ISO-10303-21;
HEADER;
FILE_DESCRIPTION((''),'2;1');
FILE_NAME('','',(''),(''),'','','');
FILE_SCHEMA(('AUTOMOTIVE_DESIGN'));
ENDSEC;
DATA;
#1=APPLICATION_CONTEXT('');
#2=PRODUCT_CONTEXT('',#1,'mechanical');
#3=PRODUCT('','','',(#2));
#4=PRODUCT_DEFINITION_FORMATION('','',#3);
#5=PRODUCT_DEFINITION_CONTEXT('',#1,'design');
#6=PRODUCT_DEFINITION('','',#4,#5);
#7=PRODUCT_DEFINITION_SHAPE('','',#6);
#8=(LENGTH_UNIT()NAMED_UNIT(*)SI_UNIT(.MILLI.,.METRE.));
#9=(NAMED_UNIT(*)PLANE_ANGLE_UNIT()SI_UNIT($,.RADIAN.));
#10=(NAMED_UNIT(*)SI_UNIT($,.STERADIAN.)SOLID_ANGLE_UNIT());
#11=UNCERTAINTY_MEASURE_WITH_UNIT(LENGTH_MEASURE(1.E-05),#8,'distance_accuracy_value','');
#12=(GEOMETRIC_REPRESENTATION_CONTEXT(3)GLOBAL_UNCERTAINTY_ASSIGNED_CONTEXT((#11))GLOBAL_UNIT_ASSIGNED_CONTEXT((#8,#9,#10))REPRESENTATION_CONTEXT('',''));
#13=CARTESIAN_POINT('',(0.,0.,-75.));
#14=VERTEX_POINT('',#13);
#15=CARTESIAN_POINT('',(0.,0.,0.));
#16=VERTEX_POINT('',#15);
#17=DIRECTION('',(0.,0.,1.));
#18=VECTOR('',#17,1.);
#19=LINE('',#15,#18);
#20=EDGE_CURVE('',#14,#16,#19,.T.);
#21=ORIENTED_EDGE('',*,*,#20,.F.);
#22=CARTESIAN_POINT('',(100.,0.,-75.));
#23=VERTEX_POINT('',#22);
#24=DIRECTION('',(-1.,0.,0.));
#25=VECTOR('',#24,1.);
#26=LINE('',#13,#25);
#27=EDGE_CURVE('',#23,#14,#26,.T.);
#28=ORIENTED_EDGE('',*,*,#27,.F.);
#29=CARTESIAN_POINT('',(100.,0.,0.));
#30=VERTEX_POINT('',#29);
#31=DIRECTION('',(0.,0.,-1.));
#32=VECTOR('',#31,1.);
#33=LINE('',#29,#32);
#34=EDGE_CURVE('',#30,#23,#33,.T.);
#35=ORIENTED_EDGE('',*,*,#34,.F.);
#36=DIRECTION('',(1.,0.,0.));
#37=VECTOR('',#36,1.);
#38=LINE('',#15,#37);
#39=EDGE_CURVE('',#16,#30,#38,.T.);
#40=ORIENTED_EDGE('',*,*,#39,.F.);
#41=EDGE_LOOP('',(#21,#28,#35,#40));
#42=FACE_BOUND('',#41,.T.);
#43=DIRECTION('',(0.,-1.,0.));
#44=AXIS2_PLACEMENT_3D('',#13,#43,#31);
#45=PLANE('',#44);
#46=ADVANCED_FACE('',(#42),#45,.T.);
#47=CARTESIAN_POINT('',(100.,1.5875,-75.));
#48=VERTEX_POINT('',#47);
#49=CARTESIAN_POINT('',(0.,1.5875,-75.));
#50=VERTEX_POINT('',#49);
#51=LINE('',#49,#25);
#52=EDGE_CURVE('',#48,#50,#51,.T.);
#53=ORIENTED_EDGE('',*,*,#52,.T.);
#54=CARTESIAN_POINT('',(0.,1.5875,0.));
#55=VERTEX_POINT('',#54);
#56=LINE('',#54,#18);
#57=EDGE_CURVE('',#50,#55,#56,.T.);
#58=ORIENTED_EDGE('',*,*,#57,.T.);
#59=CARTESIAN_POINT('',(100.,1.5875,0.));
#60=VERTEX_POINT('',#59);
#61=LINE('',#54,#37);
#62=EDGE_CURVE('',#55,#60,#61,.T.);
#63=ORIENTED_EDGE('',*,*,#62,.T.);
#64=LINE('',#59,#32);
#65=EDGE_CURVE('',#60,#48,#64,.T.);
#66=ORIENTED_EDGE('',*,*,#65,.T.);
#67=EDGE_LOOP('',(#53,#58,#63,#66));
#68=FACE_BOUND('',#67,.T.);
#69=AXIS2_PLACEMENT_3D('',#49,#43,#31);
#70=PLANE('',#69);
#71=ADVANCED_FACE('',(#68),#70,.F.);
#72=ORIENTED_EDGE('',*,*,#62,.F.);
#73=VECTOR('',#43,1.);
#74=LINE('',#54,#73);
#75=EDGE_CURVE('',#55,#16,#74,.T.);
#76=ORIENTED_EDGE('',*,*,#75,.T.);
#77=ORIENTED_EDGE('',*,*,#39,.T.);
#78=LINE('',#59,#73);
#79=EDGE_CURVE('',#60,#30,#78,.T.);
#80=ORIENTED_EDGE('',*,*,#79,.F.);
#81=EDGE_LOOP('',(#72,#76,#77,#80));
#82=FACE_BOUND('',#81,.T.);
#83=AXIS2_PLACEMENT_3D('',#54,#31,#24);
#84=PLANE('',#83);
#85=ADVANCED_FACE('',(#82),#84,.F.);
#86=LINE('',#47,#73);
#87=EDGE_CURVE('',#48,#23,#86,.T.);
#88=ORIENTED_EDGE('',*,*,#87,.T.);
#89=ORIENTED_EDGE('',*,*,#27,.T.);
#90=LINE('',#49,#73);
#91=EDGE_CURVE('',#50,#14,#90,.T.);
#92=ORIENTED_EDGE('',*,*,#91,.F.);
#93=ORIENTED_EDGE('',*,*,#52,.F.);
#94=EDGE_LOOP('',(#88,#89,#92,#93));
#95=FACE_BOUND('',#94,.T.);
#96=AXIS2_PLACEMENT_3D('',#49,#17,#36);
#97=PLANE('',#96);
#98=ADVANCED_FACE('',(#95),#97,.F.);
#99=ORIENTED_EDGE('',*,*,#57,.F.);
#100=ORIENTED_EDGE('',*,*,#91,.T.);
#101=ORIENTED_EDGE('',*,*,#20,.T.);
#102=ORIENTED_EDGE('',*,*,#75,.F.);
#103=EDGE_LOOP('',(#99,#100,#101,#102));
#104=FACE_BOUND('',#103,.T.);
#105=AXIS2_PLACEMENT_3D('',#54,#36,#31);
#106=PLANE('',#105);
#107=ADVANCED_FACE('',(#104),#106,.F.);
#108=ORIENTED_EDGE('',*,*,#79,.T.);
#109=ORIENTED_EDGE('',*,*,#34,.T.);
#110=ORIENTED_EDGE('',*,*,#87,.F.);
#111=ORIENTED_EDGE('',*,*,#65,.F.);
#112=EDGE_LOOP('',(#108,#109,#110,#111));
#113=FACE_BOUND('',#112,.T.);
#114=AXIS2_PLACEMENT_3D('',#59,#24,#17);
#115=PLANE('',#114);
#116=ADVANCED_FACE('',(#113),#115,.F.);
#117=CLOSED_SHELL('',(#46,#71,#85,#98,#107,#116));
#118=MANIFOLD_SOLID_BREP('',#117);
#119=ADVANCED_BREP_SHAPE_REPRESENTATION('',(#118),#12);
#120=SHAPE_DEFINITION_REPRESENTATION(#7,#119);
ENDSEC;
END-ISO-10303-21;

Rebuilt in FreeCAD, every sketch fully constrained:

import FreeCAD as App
import Part
import Sketcher

V = App.Vector
Q = App.Units.Quantity

doc = App.newDocument("Part")
body = doc.addObject("PartDesign::Body", "Body")

sketch1 = doc.addObject("Sketcher::SketchObject", "Sketch")
body.addObject(sketch1)
sketch1.AttachmentSupport = (doc.XZ_Plane, [""])
sketch1.MapMode = "FlatFace"
sketch1.addGeometry([
    Part.LineSegment(V(0, -75, 0), V(0, 0, 0)),
    Part.LineSegment(V(0, 0, 0), V(100, 0, 0)),
    Part.LineSegment(V(100, 0, 0), V(100, -75, 0)),
    Part.LineSegment(V(100, -75, 0), V(0, -75, 0)),
], False)
sketch1.addConstraint([
    Sketcher.Constraint("Coincident", 0, 2, 1, 1),
    Sketcher.Constraint("Coincident", 1, 2, 2, 1),
    Sketcher.Constraint("Coincident", 2, 2, 3, 1),
    Sketcher.Constraint("Coincident", 3, 2, 0, 1),
    Sketcher.Constraint("Vertical", 0),
    Sketcher.Constraint("Horizontal", 1),
    Sketcher.Constraint("Vertical", 2),
    Sketcher.Constraint("Horizontal", 3),
    Sketcher.Constraint("Coincident", 0, 2, -1, 1),
    Sketcher.Constraint("DistanceX", 1, 1, 1, 2, Q("100 mm")),
    Sketcher.Constraint("DistanceY", 0, 1, 0, 2, Q("75 mm")),
])
pad1 = doc.addObject("PartDesign::Pad", "Pad")
body.addObject(pad1)
pad1.Profile = sketch1
pad1.Length = 1.5875
pad1.Reversed = True

doc.recompute()
